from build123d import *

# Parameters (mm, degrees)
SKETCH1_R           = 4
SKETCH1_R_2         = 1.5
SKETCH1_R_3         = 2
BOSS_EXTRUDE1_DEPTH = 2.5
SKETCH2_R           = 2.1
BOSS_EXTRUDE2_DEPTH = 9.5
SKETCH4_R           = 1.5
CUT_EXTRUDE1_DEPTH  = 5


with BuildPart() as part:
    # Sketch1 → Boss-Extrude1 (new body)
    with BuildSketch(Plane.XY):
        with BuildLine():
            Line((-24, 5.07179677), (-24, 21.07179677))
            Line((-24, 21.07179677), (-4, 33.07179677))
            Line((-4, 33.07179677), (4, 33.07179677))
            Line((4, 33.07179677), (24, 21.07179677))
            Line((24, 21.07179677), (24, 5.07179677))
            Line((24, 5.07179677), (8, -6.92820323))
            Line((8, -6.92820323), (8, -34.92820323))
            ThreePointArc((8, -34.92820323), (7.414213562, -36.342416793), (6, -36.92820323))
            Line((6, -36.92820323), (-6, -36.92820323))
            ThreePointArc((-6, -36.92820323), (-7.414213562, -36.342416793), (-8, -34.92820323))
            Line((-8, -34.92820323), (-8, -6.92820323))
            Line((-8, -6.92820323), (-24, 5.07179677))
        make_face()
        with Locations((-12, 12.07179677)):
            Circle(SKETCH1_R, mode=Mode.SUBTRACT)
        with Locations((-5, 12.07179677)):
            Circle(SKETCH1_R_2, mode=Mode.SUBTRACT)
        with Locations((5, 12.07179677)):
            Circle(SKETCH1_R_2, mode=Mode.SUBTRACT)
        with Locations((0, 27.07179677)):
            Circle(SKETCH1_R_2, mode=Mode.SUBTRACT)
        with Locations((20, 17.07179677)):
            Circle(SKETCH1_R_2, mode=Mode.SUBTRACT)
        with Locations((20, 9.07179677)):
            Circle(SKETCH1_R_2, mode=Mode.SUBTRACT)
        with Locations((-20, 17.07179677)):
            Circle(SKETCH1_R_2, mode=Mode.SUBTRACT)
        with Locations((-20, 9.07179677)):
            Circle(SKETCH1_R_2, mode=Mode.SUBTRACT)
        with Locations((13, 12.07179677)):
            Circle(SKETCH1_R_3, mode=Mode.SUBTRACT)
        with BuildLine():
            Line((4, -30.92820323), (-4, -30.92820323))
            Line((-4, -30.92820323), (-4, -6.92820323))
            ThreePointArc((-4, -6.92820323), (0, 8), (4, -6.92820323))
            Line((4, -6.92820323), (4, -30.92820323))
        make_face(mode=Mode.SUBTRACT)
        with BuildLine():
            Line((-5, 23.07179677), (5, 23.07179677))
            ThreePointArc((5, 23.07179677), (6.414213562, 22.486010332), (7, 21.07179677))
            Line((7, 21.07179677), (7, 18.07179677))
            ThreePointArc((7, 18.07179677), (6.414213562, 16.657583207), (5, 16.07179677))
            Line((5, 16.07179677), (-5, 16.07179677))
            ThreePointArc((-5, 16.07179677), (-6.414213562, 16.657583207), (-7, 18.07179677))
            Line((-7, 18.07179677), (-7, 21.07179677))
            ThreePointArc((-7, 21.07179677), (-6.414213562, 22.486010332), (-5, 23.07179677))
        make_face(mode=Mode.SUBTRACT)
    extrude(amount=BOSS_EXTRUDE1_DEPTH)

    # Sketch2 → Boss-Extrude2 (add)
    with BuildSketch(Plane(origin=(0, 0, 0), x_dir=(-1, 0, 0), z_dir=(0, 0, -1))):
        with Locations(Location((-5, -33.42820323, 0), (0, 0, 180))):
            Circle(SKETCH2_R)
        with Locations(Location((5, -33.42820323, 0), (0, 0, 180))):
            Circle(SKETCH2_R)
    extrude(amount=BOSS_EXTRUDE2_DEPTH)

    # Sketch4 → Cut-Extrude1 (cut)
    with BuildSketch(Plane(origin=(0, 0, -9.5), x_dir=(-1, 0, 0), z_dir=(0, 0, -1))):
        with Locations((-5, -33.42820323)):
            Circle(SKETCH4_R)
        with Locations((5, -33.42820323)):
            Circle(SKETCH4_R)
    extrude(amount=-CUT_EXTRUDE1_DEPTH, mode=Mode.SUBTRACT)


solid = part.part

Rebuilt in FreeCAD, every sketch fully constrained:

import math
import FreeCAD as App
import Part
import Sketcher
from FreeCAD import Vector

doc = App.newDocument("Part")
body = doc.addObject("PartDesign::Body", "Body")

# Sketch on XY plane
sketch1 = doc.addObject("Sketcher::SketchObject", "Sketch")
body.addObject(sketch1)
sketch1.AttachmentSupport = (doc.XY_Plane, [""])
sketch1.MapMode = "FlatFace"
sketch1.addGeometry([
    Part.LineSegment(Vector(-24, 21.1, 0), Vector(-24, 5.1, 0)),  # 0
    Part.LineSegment(Vector(-24, 5.1, 0), Vector(-8, -6.9, 0)),  # 1
    Part.LineSegment(Vector(-8, -6.9, 0), Vector(-8, -34.9, 0)),  # 2
    Part.ArcOfCircle(Part.Circle(Vector(-6, -34.9, 0), Vector(0, 0, 1), 2), math.radians(180), math.radians(270)),  # 3
    Part.LineSegment(Vector(-6, -36.9, 0), Vector(6, -36.9, 0)),  # 4
    Part.ArcOfCircle(Part.Circle(Vector(6, -34.9, 0), Vector(0, 0, 1), 2), math.radians(-90), math.radians(0)),  # 5
    Part.LineSegment(Vector(8, -34.9, 0), Vector(8, -6.9, 0)),  # 6
    Part.LineSegment(Vector(8, -6.9, 0), Vector(24, 5.1, 0)),  # 7
    Part.LineSegment(Vector(24, 5.1, 0), Vector(24, 21.1, 0)),  # 8
    Part.LineSegment(Vector(24, 21.1, 0), Vector(4, 33.1, 0)),  # 9
    Part.LineSegment(Vector(4, 33.1, 0), Vector(-4, 33.1, 0)),  # 10
    Part.LineSegment(Vector(-4, 33.1, 0), Vector(-24, 21.1, 0)),  # 11
    Part.LineSegment(Vector(4, -30.9, 0), Vector(-4, -30.9, 0)),  # 12
    Part.LineSegment(Vector(-4, -30.9, 0), Vector(-4, -6.9, 0)),  # 13
    Part.ArcOfCircle(Part.Circle(Vector(0, 0, 0), Vector(0, 0, 1), 8), math.radians(-60), math.radians(240)),  # 14
    Part.LineSegment(Vector(4, -6.9, 0), Vector(4, -30.9, 0)),  # 15
    Part.Circle(Vector(20, 9.1, 0), Vector(0, 0, 1), 1.5),  # 16
    Part.Circle(Vector(13, 12.1, 0), Vector(0, 0, 1), 2),  # 17
    Part.Circle(Vector(5, 12.1, 0), Vector(0, 0, 1), 1.5),  # 18
    Part.Circle(Vector(20, 17.1, 0), Vector(0, 0, 1), 1.5),  # 19
    Part.Circle(Vector(-5, 12.1, 0), Vector(0, 0, 1), 1.5),  # 20
    Part.Circle(Vector(-12, 12.1, 0), Vector(0, 0, 1), 4),  # 21
    Part.Circle(Vector(-20, 9.1, 0), Vector(0, 0, 1), 1.5),  # 22
    Part.LineSegment(Vector(-5, 23.1, 0), Vector(5, 23.1, 0)),  # 23
    Part.ArcOfCircle(Part.Circle(Vector(5, 21.1, 0), Vector(0, 0, 1), 2), math.radians(0), math.radians(90)),  # 24
    Part.LineSegment(Vector(7, 21.1, 0), Vector(7, 18.1, 0)),  # 25
    Part.ArcOfCircle(Part.Circle(Vector(5, 18.1, 0), Vector(0, 0, 1), 2), math.radians(-90), math.radians(0)),  # 26
    Part.LineSegment(Vector(5, 16.1, 0), Vector(-5, 16.1, 0)),  # 27
    Part.ArcOfCircle(Part.Circle(Vector(-5, 18.1, 0), Vector(0, 0, 1), 2), math.radians(180), math.radians(270)),  # 28
    Part.LineSegment(Vector(-7, 18.1, 0), Vector(-7, 21.1, 0)),  # 29
    Part.ArcOfCircle(Part.Circle(Vector(-5, 21.1, 0), Vector(0, 0, 1), 2), math.radians(90), math.radians(180)),  # 30
    Part.Circle(Vector(0, 27.1, 0), Vector(0, 0, 1), 1.5),  # 31
    Part.Circle(Vector(-20, 17.1, 0), Vector(0, 0, 1), 1.5),  # 32
], False)
sketch1.addConstraint([
    Sketcher.Constraint("Coincident", 0, 2, 1, 1),
    Sketcher.Constraint("Coincident", 1, 2, 2, 1),
    Sketcher.Constraint("Tangent", 2, 2, 3, 1),
    Sketcher.Constraint("Tangent", 3, 2, 4, 1),
    Sketcher.Constraint("Tangent", 4, 2, 5, 1),
    Sketcher.Constraint("Tangent", 5, 2, 6, 1),
    Sketcher.Constraint("Coincident", 6, 2, 7, 1),
    Sketcher.Constraint("Coincident", 7, 2, 8, 1),
    Sketcher.Constraint("Coincident", 8, 2, 9, 1),
    Sketcher.Constraint("Coincident", 9, 2, 10, 1),
    Sketcher.Constraint("Coincident", 10, 2, 11, 1),
    Sketcher.Constraint("Coincident", 11, 2, 0, 1),
    Sketcher.Constraint("Coincident", 12, 2, 13, 1),
    Sketcher.Constraint("Coincident", 13, 2, 14, 2),
    Sketcher.Constraint("Coincident", 14, 1, 15, 1),
    Sketcher.Constraint("Coincident", 15, 2, 12, 1),
    Sketcher.Constraint("Tangent", 23, 2, 24, 2),
    Sketcher.Constraint("Tangent", 24, 1, 25, 1),
    Sketcher.Constraint("Tangent", 25, 2, 26, 2),
    Sketcher.Constraint("Tangent", 26, 1, 27, 1),
    Sketcher.Constraint("Tangent", 27, 2, 28, 2),
    Sketcher.Constraint("Tangent", 28, 1, 29, 1),
    Sketcher.Constraint("Tangent", 29, 2, 30, 2),
    Sketcher.Constraint("Tangent", 30, 1, 23, 1),
    Sketcher.Constraint("Vertical", 0),
    Sketcher.Constraint("Vertical", 2),
    Sketcher.Constraint("Horizontal", 4),
    Sketcher.Constraint("Vertical", 6),
    Sketcher.Constraint("Vertical", 8),
    Sketcher.Constraint("Horizontal", 10),
    Sketcher.Constraint("Horizontal", 12),
    Sketcher.Constraint("Vertical", 13),
    Sketcher.Constraint("Vertical", 15),
    Sketcher.Constraint("Horizontal", 23),
    Sketcher.Constraint("Vertical", 25),
    Sketcher.Constraint("Horizontal", 27),
    Sketcher.Constraint("Vertical", 29),
    Sketcher.Constraint("Coincident", 14, 3, -1, 1),
    Sketcher.Constraint("Equal", 3, 5),
    Sketcher.Constraint("Equal", 5, 17),
    Sketcher.Constraint("Equal", 16, 18),
    Sketcher.Constraint("Equal", 18, 19),
    Sketcher.Constraint("Equal", 19, 20),
    Sketcher.Constraint("Equal", 20, 22),
    Sketcher.Constraint("Equal", 17, 24),
    Sketcher.Constraint("Equal", 24, 26),
    Sketcher.Constraint("Equal", 26, 28),
    Sketcher.Constraint("Equal", 28, 30),
    Sketcher.Constraint("Equal", 22, 31),
    Sketcher.Constraint("Equal", 31, 32),
    Sketcher.Constraint("Symmetric", 18, 3, 20, 3, -2),
    Sketcher.Constraint("Symmetric", 16, 3, 22, 3, -2),
    Sketcher.Constraint("Symmetric", 19, 3, 32, 3, -2),
    Sketcher.Constraint("Symmetric", 1, 2, 6, 2, -2),
    Sketcher.Constraint("Symmetric", 0, 2, 7, 2, -2),
    Sketcher.Constraint("PointOnObject", 31, 3, -2),
    Sketcher.Constraint("Horizontal", 17, 3, 18, 3),
    Sketcher.Constraint("Horizontal", 20, 3, 21, 3),
    Sketcher.Constraint("Horizontal", 30, 3, 8, 2),
    Sketcher.Constraint("Horizontal", 8, 2, 11, 2),
    Sketcher.Constraint("Horizontal", 6, 2, 13, 2),
    Sketcher.Constraint("Horizontal", 13, 2, 14, 1),
    Sketcher.Constraint("Vertical", 16, 3, 19, 3),
    Sketcher.Constraint("Vertical", 18, 3, 24, 3),
    Sketcher.Constraint("Vertical", 20, 3, 28, 3),
    Sketcher.Constraint("Vertical", 10, 2, 12, 2),
    Sketcher.Constraint("Vertical", 9, 2, 14, 1),
    Sketcher.Constraint("Diameter", 16, 3.0),
    Sketcher.Constraint("Diameter", 17, 4.0),
    Sketcher.Constraint("Diameter", 21, 8.0),
    Sketcher.Constraint("Radius", 14, 8.0),
    Sketcher.Constraint("DistanceX", 4, 1, 4, 2, 12.0),
    Sketcher.Constraint("DistanceX", 10, 2, 10, 1, 8.0),
    Sketcher.Constraint("DistanceX", 23, 1, 23, 2, 10.0),
    Sketcher.Constraint("DistanceY", 0, 2, 0, 1, 16.0),
    Sketcher.Constraint("DistanceY", 2, 2, 2, 1, 28.0),
    Sketcher.Constraint("DistanceY", 13, 1, 13, 2, 24.0),
    Sketcher.Constraint("DistanceY", 25, 2, 25, 1, 3.0),
    Sketcher.Constraint("Distance", 1, 20.0),
    Sketcher.Constraint("DistanceX", -1, 1, 16, 3, 20.0),
    Sketcher.Constraint("DistanceX", -1, 1, 17, 3, 13.0),
    Sketcher.Constraint("DistanceX", 21, 3, -1, 1, 12.0),
    Sketcher.Constraint("DistanceX", 0, 2, -1, 1, 24.0),
    Sketcher.Constraint("DistanceY", 5, 3, 16, 3, 44.0),
    Sketcher.Constraint("DistanceY", 16, 3, 17, 3, 3.0),
    Sketcher.Constraint("DistanceY", 16, 3, 19, 3, 8.0),
    Sketcher.Constraint("DistanceY", 24, 3, 31, 3, 6.0),
    Sketcher.Constraint("DistanceY", 31, 3, 9, 2, 6.0),
])
pad1 = doc.addObject("PartDesign::Pad", "Pad")
body.addObject(pad1)
pad1.Profile = sketch1
pad1.Length = 2.5

# Sketch on XY plane
sketch2 = doc.addObject("Sketcher::SketchObject", "Sketch001")
body.addObject(sketch2)
sketch2.AttachmentSupport = (doc.XY_Plane, [""])
sketch2.MapMode = "FlatFace"
sketch2.addGeometry([
    Part.Circle(Vector(5, -33.4, 0), Vector(0, 0, 1), 2.1),
    Part.Circle(Vector(-5, -33.4, 0), Vector(0, 0, 1), 2.1),
], False)
sketch2.addConstraint([
    Sketcher.Constraint("Equal", 0, 1),
    Sketcher.Constraint("Symmetric", 0, 3, 1, 3, -2),
    Sketcher.Constraint("Diameter", 0, 4.2),
    Sketcher.Constraint("DistanceX", -1, 1, 0, 3, 5.0),
    Sketcher.Constraint("DistanceY", 0, 3, -1, 1, 33.428203),
])
pad2 = doc.addObject("PartDesign::Pad", "Pad001")
body.addObject(pad2)
pad2.Profile = sketch2
pad2.Length = 9.5
pad2.Reversed = True

# Sketch on XY plane
sketch3 = doc.addObject("Sketcher::SketchObject", "Sketch002")
body.addObject(sketch3)
sketch3.AttachmentSupport = (doc.XY_Plane, [""])
sketch3.MapMode = "FlatFace"
sketch3.AttachmentOffset = App.Placement(Vector(0, 0, -9.5), App.Rotation())
sketch3.addGeometry([
    Part.Circle(Vector(5, -33.4, 0), Vector(0, 0, 1), 1.5),
    Part.Circle(Vector(-5, -33.4, 0), Vector(0, 0, 1), 1.5),
], False)
sketch3.addConstraint([
    Sketcher.Constraint("Equal", 0, 1),
    Sketcher.Constraint("Symmetric", 0, 3, 1, 3, -2),
    Sketcher.Constraint("Diameter", 0, 3.0),
    Sketcher.Constraint("DistanceX", -1, 1, 0, 3, 5.0),
    Sketcher.Constraint("DistanceY", 0, 3, -1, 1, 33.428203),
])
pocket1 = doc.addObject("PartDesign::Pocket", "Pocket")
body.addObject(pocket1)
pocket1.Profile = sketch3
pocket1.Length = 5
pocket1.Reversed = True

doc.recompute()
